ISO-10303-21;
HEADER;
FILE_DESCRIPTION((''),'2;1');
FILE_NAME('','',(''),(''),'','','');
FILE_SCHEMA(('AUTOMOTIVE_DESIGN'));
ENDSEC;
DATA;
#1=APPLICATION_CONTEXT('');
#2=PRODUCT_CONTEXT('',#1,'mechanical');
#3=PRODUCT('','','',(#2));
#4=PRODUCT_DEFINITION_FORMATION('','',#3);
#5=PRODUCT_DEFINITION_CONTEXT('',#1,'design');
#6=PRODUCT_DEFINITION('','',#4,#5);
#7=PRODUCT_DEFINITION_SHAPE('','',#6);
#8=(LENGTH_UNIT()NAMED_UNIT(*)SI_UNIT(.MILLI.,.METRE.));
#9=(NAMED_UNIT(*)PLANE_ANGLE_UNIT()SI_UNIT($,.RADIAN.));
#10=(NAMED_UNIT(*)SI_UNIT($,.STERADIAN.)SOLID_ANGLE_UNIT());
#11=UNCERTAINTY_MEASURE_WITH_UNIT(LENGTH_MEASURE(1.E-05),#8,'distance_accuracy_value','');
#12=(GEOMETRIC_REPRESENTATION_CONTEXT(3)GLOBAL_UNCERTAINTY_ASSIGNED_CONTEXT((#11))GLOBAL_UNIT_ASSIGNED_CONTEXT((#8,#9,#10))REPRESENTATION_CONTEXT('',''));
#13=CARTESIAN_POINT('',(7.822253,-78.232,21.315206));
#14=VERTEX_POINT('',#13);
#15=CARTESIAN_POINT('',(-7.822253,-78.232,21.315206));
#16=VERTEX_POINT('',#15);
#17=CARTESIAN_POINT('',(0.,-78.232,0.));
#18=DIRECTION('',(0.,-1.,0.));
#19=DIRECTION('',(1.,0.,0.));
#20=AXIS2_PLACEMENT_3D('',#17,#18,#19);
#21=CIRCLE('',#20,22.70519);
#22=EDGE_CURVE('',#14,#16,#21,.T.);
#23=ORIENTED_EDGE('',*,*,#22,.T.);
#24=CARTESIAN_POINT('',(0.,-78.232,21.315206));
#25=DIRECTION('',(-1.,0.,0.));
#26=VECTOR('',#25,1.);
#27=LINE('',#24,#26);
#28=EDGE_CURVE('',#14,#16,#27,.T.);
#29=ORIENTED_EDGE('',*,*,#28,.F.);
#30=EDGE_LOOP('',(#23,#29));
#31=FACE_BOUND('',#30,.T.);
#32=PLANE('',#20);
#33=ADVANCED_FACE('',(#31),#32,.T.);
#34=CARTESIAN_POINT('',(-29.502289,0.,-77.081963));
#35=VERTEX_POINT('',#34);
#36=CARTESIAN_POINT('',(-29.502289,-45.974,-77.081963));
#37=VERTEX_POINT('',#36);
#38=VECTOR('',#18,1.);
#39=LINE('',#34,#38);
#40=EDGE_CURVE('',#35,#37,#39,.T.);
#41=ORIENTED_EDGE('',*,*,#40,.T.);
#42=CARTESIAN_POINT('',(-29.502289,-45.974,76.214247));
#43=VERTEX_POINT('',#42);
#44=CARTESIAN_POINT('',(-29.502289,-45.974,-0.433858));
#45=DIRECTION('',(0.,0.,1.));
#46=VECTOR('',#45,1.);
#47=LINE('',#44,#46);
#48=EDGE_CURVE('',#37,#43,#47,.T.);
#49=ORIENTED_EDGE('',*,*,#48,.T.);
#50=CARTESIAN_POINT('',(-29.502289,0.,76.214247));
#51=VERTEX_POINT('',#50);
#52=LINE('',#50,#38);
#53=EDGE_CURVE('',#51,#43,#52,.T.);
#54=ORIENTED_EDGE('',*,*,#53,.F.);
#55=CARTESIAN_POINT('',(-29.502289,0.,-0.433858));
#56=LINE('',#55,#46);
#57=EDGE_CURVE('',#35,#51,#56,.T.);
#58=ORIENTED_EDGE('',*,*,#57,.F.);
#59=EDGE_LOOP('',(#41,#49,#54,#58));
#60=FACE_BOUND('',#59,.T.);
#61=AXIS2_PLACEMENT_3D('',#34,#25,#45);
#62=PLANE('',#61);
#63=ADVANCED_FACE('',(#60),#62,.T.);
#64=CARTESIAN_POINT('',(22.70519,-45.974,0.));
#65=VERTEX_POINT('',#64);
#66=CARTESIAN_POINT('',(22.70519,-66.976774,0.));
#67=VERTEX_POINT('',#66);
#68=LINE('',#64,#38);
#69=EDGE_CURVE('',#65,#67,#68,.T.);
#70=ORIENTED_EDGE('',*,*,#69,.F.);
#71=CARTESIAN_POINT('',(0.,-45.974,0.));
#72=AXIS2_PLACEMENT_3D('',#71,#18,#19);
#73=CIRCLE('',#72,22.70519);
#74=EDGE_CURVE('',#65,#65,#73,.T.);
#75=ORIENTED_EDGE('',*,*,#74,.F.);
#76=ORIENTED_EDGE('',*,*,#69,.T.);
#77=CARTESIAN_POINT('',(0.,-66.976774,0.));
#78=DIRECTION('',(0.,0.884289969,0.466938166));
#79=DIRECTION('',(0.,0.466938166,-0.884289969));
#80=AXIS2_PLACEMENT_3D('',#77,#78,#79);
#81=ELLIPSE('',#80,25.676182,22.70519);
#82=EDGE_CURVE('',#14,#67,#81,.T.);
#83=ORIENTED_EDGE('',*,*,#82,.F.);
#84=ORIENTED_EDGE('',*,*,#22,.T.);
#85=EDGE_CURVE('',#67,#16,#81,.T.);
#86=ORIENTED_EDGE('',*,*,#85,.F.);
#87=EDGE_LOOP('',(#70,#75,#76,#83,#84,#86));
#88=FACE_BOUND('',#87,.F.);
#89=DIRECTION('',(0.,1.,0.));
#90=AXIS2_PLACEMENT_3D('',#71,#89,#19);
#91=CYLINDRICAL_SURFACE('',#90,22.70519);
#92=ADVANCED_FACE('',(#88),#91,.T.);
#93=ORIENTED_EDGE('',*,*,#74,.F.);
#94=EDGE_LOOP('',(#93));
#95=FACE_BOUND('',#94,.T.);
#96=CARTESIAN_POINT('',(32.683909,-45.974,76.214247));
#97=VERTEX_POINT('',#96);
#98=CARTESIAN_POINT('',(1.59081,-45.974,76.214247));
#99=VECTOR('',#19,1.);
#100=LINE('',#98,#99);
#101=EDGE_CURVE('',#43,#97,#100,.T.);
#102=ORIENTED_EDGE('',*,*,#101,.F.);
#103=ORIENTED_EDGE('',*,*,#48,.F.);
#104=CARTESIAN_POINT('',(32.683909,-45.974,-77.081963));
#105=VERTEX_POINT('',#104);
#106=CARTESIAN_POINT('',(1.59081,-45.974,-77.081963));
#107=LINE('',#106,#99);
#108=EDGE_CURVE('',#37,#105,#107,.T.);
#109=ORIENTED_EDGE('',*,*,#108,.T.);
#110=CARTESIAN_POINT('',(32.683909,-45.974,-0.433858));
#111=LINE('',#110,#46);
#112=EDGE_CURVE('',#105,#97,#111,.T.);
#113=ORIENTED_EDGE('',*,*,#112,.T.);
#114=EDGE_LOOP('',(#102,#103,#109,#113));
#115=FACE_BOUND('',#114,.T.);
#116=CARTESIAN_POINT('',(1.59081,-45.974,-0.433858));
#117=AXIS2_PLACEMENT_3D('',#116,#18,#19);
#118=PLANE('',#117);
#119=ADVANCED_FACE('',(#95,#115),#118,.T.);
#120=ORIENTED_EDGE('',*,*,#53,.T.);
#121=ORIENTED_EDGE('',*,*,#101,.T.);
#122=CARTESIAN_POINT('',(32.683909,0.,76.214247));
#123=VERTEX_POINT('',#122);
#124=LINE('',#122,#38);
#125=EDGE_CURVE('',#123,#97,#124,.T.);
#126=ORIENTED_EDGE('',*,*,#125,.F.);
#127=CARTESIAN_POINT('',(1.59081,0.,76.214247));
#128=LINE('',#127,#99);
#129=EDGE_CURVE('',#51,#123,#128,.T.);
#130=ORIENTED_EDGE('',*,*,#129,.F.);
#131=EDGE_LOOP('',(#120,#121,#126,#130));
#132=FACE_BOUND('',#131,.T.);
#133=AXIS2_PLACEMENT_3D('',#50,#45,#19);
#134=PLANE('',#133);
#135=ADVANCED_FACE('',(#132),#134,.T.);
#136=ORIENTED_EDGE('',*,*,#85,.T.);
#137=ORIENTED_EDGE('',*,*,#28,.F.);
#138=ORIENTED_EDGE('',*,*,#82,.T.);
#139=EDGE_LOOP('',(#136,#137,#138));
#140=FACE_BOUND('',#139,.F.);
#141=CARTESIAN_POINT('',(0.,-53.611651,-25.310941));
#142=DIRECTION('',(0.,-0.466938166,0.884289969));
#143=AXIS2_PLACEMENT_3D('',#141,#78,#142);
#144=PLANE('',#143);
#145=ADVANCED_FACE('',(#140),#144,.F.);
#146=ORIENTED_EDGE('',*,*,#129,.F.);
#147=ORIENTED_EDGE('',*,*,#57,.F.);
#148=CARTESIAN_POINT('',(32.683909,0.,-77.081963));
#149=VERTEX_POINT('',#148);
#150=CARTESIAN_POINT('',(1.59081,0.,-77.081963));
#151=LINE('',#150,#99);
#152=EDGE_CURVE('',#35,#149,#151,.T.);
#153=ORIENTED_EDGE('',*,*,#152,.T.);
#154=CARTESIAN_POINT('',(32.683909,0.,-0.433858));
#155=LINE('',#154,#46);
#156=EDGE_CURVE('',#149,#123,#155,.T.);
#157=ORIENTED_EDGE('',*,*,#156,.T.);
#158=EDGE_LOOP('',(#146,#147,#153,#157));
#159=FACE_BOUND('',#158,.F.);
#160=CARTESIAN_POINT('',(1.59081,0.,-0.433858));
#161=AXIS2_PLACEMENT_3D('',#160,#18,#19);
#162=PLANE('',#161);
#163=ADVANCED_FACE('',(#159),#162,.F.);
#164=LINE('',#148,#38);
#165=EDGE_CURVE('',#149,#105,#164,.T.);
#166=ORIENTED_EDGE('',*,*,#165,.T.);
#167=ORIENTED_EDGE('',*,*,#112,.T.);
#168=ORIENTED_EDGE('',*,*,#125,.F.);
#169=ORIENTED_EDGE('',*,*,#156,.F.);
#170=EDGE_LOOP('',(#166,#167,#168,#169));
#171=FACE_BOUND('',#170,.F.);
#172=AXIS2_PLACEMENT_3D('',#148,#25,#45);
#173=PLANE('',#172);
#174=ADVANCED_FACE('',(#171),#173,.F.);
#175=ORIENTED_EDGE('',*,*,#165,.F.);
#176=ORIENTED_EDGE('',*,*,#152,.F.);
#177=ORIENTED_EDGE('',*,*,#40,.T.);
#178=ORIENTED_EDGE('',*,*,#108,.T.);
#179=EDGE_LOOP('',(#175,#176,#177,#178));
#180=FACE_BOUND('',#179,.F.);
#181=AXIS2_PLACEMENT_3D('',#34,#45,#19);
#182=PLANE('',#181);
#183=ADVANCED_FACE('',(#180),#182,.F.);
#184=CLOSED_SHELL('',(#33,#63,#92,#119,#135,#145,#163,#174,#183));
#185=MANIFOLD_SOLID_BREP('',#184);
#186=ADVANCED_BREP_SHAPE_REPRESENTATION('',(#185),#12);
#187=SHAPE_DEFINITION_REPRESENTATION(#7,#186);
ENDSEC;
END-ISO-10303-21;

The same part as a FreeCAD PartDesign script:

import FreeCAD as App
import Part
import Sketcher
Q = App.Units.Quantity

doc = App.newDocument("Part")
body = doc.addObject("PartDesign::Body", "Body")

# Sketch on XZ plane
sketch1 = body.newObject("Sketcher::SketchObject", "Sketch")
sketch1.AttachmentSupport = (doc.getObject("XZ_Plane"), [""])
sketch1.MapMode = "FlatFace"
sketch1.addGeometry([
    Part.LineSegment(App.Vector(-30, 76, 0), App.Vector(-30, -77, 0)),
    Part.LineSegment(App.Vector(-30, -77, 0), App.Vector(33, -77, 0)),
    Part.LineSegment(App.Vector(33, -77, 0), App.Vector(33, 76, 0)),
    Part.LineSegment(App.Vector(33, 76, 0), App.Vector(-30, 76, 0)),
], False)
sketch1.addConstraint([
    Sketcher.Constraint("Coincident", 0, 2, 1, 1),
    Sketcher.Constraint("Coincident", 1, 2, 2, 1),
    Sketcher.Constraint("Coincident", 2, 2, 3, 1),
    Sketcher.Constraint("Coincident", 3, 2, 0, 1),
    Sketcher.Constraint("Vertical", 0),
    Sketcher.Constraint("Horizontal", 1),
    Sketcher.Constraint("Vertical", 2),
    Sketcher.Constraint("Horizontal", 3),
    Sketcher.Constraint("DistanceX", 1, 1, 1, 2, 62.186198),
    Sketcher.Constraint("DistanceY", 0, 2, 0, 1, 153.296209),
    Sketcher.Constraint("DistanceX", 0, 2, -1, 1, 29.502289),
    Sketcher.Constraint("DistanceY", 0, 2, -1, 1, 77.081963),
])
pad1 = body.newObject("PartDesign::Pad", "Pad")
pad1.Profile = sketch1
pad1.Length = Q("1.81 in")

# Sketch on XZ plane
sketch2 = body.newObject("Sketcher::SketchObject", "Sketch001")
sketch2.AttachmentSupport = (doc.getObject("XZ_Plane"), [""])
sketch2.MapMode = "FlatFace"
sketch2.AttachmentOffset = App.Placement(App.Vector(0, 0, 1.81 * 25.4), App.Rotation())
sketch2.addGeometry(Part.Circle(App.Vector(0, 0, 0), App.Vector(0, 0, 1), 23), False)
sketch2.addConstraint([
    Sketcher.Constraint("Coincident", 0, 3, -1, 1),
    Sketcher.Constraint("Diameter", 0, 45.41038),
])
pad2 = body.newObject("PartDesign::Pad", "Pad001")
pad2.Profile = sketch2
pad2.Length = Q("1.27 in")

# Sketch on YZ plane
sketch3 = body.newObject("Sketcher::SketchObject", "Sketch002")
sketch3.AttachmentSupport = (doc.getObject("YZ_Plane"), [""])
sketch3.MapMode = "FlatFace"
sketch3.addGeometry([
    Part.LineSegment(App.Vector(-54, -25, 0), App.Vector(-79, 22, 0)),
    Part.LineSegment(App.Vector(-79, 22, 0), App.Vector(-79, -25, 0)),
    Part.LineSegment(App.Vector(-79, -25, 0), App.Vector(-54, -25, 0)),
], False)
sketch3.addConstraint([
    Sketcher.Constraint("Coincident", 0, 2, 1, 1),
    Sketcher.Constraint("Coincident", 1, 2, 2, 1),
    Sketcher.Constraint("Coincident", 2, 2, 0, 1),
    Sketcher.Constraint("Horizontal", 2),
    Sketcher.Constraint("DistanceX", 2, 1, 2, 2, 25.015861),
    Sketcher.Constraint("Distance", 1, 47.798679),
    Sketcher.Constraint("DistanceX", 1, 2, -1, 1, 78.627512),
    Sketcher.Constraint("DistanceY", 1, 2, -1, 1, 25.310941),
    Sketcher.Constraint("Distance", 0, 54.052583),
])
pocket1 = body.newObject("PartDesign::Pocket", "Pocket")
pocket1.Profile = sketch3
pocket1.Length = Q("1.92 in")
pocket1.Midplane = True

doc.recompute()
